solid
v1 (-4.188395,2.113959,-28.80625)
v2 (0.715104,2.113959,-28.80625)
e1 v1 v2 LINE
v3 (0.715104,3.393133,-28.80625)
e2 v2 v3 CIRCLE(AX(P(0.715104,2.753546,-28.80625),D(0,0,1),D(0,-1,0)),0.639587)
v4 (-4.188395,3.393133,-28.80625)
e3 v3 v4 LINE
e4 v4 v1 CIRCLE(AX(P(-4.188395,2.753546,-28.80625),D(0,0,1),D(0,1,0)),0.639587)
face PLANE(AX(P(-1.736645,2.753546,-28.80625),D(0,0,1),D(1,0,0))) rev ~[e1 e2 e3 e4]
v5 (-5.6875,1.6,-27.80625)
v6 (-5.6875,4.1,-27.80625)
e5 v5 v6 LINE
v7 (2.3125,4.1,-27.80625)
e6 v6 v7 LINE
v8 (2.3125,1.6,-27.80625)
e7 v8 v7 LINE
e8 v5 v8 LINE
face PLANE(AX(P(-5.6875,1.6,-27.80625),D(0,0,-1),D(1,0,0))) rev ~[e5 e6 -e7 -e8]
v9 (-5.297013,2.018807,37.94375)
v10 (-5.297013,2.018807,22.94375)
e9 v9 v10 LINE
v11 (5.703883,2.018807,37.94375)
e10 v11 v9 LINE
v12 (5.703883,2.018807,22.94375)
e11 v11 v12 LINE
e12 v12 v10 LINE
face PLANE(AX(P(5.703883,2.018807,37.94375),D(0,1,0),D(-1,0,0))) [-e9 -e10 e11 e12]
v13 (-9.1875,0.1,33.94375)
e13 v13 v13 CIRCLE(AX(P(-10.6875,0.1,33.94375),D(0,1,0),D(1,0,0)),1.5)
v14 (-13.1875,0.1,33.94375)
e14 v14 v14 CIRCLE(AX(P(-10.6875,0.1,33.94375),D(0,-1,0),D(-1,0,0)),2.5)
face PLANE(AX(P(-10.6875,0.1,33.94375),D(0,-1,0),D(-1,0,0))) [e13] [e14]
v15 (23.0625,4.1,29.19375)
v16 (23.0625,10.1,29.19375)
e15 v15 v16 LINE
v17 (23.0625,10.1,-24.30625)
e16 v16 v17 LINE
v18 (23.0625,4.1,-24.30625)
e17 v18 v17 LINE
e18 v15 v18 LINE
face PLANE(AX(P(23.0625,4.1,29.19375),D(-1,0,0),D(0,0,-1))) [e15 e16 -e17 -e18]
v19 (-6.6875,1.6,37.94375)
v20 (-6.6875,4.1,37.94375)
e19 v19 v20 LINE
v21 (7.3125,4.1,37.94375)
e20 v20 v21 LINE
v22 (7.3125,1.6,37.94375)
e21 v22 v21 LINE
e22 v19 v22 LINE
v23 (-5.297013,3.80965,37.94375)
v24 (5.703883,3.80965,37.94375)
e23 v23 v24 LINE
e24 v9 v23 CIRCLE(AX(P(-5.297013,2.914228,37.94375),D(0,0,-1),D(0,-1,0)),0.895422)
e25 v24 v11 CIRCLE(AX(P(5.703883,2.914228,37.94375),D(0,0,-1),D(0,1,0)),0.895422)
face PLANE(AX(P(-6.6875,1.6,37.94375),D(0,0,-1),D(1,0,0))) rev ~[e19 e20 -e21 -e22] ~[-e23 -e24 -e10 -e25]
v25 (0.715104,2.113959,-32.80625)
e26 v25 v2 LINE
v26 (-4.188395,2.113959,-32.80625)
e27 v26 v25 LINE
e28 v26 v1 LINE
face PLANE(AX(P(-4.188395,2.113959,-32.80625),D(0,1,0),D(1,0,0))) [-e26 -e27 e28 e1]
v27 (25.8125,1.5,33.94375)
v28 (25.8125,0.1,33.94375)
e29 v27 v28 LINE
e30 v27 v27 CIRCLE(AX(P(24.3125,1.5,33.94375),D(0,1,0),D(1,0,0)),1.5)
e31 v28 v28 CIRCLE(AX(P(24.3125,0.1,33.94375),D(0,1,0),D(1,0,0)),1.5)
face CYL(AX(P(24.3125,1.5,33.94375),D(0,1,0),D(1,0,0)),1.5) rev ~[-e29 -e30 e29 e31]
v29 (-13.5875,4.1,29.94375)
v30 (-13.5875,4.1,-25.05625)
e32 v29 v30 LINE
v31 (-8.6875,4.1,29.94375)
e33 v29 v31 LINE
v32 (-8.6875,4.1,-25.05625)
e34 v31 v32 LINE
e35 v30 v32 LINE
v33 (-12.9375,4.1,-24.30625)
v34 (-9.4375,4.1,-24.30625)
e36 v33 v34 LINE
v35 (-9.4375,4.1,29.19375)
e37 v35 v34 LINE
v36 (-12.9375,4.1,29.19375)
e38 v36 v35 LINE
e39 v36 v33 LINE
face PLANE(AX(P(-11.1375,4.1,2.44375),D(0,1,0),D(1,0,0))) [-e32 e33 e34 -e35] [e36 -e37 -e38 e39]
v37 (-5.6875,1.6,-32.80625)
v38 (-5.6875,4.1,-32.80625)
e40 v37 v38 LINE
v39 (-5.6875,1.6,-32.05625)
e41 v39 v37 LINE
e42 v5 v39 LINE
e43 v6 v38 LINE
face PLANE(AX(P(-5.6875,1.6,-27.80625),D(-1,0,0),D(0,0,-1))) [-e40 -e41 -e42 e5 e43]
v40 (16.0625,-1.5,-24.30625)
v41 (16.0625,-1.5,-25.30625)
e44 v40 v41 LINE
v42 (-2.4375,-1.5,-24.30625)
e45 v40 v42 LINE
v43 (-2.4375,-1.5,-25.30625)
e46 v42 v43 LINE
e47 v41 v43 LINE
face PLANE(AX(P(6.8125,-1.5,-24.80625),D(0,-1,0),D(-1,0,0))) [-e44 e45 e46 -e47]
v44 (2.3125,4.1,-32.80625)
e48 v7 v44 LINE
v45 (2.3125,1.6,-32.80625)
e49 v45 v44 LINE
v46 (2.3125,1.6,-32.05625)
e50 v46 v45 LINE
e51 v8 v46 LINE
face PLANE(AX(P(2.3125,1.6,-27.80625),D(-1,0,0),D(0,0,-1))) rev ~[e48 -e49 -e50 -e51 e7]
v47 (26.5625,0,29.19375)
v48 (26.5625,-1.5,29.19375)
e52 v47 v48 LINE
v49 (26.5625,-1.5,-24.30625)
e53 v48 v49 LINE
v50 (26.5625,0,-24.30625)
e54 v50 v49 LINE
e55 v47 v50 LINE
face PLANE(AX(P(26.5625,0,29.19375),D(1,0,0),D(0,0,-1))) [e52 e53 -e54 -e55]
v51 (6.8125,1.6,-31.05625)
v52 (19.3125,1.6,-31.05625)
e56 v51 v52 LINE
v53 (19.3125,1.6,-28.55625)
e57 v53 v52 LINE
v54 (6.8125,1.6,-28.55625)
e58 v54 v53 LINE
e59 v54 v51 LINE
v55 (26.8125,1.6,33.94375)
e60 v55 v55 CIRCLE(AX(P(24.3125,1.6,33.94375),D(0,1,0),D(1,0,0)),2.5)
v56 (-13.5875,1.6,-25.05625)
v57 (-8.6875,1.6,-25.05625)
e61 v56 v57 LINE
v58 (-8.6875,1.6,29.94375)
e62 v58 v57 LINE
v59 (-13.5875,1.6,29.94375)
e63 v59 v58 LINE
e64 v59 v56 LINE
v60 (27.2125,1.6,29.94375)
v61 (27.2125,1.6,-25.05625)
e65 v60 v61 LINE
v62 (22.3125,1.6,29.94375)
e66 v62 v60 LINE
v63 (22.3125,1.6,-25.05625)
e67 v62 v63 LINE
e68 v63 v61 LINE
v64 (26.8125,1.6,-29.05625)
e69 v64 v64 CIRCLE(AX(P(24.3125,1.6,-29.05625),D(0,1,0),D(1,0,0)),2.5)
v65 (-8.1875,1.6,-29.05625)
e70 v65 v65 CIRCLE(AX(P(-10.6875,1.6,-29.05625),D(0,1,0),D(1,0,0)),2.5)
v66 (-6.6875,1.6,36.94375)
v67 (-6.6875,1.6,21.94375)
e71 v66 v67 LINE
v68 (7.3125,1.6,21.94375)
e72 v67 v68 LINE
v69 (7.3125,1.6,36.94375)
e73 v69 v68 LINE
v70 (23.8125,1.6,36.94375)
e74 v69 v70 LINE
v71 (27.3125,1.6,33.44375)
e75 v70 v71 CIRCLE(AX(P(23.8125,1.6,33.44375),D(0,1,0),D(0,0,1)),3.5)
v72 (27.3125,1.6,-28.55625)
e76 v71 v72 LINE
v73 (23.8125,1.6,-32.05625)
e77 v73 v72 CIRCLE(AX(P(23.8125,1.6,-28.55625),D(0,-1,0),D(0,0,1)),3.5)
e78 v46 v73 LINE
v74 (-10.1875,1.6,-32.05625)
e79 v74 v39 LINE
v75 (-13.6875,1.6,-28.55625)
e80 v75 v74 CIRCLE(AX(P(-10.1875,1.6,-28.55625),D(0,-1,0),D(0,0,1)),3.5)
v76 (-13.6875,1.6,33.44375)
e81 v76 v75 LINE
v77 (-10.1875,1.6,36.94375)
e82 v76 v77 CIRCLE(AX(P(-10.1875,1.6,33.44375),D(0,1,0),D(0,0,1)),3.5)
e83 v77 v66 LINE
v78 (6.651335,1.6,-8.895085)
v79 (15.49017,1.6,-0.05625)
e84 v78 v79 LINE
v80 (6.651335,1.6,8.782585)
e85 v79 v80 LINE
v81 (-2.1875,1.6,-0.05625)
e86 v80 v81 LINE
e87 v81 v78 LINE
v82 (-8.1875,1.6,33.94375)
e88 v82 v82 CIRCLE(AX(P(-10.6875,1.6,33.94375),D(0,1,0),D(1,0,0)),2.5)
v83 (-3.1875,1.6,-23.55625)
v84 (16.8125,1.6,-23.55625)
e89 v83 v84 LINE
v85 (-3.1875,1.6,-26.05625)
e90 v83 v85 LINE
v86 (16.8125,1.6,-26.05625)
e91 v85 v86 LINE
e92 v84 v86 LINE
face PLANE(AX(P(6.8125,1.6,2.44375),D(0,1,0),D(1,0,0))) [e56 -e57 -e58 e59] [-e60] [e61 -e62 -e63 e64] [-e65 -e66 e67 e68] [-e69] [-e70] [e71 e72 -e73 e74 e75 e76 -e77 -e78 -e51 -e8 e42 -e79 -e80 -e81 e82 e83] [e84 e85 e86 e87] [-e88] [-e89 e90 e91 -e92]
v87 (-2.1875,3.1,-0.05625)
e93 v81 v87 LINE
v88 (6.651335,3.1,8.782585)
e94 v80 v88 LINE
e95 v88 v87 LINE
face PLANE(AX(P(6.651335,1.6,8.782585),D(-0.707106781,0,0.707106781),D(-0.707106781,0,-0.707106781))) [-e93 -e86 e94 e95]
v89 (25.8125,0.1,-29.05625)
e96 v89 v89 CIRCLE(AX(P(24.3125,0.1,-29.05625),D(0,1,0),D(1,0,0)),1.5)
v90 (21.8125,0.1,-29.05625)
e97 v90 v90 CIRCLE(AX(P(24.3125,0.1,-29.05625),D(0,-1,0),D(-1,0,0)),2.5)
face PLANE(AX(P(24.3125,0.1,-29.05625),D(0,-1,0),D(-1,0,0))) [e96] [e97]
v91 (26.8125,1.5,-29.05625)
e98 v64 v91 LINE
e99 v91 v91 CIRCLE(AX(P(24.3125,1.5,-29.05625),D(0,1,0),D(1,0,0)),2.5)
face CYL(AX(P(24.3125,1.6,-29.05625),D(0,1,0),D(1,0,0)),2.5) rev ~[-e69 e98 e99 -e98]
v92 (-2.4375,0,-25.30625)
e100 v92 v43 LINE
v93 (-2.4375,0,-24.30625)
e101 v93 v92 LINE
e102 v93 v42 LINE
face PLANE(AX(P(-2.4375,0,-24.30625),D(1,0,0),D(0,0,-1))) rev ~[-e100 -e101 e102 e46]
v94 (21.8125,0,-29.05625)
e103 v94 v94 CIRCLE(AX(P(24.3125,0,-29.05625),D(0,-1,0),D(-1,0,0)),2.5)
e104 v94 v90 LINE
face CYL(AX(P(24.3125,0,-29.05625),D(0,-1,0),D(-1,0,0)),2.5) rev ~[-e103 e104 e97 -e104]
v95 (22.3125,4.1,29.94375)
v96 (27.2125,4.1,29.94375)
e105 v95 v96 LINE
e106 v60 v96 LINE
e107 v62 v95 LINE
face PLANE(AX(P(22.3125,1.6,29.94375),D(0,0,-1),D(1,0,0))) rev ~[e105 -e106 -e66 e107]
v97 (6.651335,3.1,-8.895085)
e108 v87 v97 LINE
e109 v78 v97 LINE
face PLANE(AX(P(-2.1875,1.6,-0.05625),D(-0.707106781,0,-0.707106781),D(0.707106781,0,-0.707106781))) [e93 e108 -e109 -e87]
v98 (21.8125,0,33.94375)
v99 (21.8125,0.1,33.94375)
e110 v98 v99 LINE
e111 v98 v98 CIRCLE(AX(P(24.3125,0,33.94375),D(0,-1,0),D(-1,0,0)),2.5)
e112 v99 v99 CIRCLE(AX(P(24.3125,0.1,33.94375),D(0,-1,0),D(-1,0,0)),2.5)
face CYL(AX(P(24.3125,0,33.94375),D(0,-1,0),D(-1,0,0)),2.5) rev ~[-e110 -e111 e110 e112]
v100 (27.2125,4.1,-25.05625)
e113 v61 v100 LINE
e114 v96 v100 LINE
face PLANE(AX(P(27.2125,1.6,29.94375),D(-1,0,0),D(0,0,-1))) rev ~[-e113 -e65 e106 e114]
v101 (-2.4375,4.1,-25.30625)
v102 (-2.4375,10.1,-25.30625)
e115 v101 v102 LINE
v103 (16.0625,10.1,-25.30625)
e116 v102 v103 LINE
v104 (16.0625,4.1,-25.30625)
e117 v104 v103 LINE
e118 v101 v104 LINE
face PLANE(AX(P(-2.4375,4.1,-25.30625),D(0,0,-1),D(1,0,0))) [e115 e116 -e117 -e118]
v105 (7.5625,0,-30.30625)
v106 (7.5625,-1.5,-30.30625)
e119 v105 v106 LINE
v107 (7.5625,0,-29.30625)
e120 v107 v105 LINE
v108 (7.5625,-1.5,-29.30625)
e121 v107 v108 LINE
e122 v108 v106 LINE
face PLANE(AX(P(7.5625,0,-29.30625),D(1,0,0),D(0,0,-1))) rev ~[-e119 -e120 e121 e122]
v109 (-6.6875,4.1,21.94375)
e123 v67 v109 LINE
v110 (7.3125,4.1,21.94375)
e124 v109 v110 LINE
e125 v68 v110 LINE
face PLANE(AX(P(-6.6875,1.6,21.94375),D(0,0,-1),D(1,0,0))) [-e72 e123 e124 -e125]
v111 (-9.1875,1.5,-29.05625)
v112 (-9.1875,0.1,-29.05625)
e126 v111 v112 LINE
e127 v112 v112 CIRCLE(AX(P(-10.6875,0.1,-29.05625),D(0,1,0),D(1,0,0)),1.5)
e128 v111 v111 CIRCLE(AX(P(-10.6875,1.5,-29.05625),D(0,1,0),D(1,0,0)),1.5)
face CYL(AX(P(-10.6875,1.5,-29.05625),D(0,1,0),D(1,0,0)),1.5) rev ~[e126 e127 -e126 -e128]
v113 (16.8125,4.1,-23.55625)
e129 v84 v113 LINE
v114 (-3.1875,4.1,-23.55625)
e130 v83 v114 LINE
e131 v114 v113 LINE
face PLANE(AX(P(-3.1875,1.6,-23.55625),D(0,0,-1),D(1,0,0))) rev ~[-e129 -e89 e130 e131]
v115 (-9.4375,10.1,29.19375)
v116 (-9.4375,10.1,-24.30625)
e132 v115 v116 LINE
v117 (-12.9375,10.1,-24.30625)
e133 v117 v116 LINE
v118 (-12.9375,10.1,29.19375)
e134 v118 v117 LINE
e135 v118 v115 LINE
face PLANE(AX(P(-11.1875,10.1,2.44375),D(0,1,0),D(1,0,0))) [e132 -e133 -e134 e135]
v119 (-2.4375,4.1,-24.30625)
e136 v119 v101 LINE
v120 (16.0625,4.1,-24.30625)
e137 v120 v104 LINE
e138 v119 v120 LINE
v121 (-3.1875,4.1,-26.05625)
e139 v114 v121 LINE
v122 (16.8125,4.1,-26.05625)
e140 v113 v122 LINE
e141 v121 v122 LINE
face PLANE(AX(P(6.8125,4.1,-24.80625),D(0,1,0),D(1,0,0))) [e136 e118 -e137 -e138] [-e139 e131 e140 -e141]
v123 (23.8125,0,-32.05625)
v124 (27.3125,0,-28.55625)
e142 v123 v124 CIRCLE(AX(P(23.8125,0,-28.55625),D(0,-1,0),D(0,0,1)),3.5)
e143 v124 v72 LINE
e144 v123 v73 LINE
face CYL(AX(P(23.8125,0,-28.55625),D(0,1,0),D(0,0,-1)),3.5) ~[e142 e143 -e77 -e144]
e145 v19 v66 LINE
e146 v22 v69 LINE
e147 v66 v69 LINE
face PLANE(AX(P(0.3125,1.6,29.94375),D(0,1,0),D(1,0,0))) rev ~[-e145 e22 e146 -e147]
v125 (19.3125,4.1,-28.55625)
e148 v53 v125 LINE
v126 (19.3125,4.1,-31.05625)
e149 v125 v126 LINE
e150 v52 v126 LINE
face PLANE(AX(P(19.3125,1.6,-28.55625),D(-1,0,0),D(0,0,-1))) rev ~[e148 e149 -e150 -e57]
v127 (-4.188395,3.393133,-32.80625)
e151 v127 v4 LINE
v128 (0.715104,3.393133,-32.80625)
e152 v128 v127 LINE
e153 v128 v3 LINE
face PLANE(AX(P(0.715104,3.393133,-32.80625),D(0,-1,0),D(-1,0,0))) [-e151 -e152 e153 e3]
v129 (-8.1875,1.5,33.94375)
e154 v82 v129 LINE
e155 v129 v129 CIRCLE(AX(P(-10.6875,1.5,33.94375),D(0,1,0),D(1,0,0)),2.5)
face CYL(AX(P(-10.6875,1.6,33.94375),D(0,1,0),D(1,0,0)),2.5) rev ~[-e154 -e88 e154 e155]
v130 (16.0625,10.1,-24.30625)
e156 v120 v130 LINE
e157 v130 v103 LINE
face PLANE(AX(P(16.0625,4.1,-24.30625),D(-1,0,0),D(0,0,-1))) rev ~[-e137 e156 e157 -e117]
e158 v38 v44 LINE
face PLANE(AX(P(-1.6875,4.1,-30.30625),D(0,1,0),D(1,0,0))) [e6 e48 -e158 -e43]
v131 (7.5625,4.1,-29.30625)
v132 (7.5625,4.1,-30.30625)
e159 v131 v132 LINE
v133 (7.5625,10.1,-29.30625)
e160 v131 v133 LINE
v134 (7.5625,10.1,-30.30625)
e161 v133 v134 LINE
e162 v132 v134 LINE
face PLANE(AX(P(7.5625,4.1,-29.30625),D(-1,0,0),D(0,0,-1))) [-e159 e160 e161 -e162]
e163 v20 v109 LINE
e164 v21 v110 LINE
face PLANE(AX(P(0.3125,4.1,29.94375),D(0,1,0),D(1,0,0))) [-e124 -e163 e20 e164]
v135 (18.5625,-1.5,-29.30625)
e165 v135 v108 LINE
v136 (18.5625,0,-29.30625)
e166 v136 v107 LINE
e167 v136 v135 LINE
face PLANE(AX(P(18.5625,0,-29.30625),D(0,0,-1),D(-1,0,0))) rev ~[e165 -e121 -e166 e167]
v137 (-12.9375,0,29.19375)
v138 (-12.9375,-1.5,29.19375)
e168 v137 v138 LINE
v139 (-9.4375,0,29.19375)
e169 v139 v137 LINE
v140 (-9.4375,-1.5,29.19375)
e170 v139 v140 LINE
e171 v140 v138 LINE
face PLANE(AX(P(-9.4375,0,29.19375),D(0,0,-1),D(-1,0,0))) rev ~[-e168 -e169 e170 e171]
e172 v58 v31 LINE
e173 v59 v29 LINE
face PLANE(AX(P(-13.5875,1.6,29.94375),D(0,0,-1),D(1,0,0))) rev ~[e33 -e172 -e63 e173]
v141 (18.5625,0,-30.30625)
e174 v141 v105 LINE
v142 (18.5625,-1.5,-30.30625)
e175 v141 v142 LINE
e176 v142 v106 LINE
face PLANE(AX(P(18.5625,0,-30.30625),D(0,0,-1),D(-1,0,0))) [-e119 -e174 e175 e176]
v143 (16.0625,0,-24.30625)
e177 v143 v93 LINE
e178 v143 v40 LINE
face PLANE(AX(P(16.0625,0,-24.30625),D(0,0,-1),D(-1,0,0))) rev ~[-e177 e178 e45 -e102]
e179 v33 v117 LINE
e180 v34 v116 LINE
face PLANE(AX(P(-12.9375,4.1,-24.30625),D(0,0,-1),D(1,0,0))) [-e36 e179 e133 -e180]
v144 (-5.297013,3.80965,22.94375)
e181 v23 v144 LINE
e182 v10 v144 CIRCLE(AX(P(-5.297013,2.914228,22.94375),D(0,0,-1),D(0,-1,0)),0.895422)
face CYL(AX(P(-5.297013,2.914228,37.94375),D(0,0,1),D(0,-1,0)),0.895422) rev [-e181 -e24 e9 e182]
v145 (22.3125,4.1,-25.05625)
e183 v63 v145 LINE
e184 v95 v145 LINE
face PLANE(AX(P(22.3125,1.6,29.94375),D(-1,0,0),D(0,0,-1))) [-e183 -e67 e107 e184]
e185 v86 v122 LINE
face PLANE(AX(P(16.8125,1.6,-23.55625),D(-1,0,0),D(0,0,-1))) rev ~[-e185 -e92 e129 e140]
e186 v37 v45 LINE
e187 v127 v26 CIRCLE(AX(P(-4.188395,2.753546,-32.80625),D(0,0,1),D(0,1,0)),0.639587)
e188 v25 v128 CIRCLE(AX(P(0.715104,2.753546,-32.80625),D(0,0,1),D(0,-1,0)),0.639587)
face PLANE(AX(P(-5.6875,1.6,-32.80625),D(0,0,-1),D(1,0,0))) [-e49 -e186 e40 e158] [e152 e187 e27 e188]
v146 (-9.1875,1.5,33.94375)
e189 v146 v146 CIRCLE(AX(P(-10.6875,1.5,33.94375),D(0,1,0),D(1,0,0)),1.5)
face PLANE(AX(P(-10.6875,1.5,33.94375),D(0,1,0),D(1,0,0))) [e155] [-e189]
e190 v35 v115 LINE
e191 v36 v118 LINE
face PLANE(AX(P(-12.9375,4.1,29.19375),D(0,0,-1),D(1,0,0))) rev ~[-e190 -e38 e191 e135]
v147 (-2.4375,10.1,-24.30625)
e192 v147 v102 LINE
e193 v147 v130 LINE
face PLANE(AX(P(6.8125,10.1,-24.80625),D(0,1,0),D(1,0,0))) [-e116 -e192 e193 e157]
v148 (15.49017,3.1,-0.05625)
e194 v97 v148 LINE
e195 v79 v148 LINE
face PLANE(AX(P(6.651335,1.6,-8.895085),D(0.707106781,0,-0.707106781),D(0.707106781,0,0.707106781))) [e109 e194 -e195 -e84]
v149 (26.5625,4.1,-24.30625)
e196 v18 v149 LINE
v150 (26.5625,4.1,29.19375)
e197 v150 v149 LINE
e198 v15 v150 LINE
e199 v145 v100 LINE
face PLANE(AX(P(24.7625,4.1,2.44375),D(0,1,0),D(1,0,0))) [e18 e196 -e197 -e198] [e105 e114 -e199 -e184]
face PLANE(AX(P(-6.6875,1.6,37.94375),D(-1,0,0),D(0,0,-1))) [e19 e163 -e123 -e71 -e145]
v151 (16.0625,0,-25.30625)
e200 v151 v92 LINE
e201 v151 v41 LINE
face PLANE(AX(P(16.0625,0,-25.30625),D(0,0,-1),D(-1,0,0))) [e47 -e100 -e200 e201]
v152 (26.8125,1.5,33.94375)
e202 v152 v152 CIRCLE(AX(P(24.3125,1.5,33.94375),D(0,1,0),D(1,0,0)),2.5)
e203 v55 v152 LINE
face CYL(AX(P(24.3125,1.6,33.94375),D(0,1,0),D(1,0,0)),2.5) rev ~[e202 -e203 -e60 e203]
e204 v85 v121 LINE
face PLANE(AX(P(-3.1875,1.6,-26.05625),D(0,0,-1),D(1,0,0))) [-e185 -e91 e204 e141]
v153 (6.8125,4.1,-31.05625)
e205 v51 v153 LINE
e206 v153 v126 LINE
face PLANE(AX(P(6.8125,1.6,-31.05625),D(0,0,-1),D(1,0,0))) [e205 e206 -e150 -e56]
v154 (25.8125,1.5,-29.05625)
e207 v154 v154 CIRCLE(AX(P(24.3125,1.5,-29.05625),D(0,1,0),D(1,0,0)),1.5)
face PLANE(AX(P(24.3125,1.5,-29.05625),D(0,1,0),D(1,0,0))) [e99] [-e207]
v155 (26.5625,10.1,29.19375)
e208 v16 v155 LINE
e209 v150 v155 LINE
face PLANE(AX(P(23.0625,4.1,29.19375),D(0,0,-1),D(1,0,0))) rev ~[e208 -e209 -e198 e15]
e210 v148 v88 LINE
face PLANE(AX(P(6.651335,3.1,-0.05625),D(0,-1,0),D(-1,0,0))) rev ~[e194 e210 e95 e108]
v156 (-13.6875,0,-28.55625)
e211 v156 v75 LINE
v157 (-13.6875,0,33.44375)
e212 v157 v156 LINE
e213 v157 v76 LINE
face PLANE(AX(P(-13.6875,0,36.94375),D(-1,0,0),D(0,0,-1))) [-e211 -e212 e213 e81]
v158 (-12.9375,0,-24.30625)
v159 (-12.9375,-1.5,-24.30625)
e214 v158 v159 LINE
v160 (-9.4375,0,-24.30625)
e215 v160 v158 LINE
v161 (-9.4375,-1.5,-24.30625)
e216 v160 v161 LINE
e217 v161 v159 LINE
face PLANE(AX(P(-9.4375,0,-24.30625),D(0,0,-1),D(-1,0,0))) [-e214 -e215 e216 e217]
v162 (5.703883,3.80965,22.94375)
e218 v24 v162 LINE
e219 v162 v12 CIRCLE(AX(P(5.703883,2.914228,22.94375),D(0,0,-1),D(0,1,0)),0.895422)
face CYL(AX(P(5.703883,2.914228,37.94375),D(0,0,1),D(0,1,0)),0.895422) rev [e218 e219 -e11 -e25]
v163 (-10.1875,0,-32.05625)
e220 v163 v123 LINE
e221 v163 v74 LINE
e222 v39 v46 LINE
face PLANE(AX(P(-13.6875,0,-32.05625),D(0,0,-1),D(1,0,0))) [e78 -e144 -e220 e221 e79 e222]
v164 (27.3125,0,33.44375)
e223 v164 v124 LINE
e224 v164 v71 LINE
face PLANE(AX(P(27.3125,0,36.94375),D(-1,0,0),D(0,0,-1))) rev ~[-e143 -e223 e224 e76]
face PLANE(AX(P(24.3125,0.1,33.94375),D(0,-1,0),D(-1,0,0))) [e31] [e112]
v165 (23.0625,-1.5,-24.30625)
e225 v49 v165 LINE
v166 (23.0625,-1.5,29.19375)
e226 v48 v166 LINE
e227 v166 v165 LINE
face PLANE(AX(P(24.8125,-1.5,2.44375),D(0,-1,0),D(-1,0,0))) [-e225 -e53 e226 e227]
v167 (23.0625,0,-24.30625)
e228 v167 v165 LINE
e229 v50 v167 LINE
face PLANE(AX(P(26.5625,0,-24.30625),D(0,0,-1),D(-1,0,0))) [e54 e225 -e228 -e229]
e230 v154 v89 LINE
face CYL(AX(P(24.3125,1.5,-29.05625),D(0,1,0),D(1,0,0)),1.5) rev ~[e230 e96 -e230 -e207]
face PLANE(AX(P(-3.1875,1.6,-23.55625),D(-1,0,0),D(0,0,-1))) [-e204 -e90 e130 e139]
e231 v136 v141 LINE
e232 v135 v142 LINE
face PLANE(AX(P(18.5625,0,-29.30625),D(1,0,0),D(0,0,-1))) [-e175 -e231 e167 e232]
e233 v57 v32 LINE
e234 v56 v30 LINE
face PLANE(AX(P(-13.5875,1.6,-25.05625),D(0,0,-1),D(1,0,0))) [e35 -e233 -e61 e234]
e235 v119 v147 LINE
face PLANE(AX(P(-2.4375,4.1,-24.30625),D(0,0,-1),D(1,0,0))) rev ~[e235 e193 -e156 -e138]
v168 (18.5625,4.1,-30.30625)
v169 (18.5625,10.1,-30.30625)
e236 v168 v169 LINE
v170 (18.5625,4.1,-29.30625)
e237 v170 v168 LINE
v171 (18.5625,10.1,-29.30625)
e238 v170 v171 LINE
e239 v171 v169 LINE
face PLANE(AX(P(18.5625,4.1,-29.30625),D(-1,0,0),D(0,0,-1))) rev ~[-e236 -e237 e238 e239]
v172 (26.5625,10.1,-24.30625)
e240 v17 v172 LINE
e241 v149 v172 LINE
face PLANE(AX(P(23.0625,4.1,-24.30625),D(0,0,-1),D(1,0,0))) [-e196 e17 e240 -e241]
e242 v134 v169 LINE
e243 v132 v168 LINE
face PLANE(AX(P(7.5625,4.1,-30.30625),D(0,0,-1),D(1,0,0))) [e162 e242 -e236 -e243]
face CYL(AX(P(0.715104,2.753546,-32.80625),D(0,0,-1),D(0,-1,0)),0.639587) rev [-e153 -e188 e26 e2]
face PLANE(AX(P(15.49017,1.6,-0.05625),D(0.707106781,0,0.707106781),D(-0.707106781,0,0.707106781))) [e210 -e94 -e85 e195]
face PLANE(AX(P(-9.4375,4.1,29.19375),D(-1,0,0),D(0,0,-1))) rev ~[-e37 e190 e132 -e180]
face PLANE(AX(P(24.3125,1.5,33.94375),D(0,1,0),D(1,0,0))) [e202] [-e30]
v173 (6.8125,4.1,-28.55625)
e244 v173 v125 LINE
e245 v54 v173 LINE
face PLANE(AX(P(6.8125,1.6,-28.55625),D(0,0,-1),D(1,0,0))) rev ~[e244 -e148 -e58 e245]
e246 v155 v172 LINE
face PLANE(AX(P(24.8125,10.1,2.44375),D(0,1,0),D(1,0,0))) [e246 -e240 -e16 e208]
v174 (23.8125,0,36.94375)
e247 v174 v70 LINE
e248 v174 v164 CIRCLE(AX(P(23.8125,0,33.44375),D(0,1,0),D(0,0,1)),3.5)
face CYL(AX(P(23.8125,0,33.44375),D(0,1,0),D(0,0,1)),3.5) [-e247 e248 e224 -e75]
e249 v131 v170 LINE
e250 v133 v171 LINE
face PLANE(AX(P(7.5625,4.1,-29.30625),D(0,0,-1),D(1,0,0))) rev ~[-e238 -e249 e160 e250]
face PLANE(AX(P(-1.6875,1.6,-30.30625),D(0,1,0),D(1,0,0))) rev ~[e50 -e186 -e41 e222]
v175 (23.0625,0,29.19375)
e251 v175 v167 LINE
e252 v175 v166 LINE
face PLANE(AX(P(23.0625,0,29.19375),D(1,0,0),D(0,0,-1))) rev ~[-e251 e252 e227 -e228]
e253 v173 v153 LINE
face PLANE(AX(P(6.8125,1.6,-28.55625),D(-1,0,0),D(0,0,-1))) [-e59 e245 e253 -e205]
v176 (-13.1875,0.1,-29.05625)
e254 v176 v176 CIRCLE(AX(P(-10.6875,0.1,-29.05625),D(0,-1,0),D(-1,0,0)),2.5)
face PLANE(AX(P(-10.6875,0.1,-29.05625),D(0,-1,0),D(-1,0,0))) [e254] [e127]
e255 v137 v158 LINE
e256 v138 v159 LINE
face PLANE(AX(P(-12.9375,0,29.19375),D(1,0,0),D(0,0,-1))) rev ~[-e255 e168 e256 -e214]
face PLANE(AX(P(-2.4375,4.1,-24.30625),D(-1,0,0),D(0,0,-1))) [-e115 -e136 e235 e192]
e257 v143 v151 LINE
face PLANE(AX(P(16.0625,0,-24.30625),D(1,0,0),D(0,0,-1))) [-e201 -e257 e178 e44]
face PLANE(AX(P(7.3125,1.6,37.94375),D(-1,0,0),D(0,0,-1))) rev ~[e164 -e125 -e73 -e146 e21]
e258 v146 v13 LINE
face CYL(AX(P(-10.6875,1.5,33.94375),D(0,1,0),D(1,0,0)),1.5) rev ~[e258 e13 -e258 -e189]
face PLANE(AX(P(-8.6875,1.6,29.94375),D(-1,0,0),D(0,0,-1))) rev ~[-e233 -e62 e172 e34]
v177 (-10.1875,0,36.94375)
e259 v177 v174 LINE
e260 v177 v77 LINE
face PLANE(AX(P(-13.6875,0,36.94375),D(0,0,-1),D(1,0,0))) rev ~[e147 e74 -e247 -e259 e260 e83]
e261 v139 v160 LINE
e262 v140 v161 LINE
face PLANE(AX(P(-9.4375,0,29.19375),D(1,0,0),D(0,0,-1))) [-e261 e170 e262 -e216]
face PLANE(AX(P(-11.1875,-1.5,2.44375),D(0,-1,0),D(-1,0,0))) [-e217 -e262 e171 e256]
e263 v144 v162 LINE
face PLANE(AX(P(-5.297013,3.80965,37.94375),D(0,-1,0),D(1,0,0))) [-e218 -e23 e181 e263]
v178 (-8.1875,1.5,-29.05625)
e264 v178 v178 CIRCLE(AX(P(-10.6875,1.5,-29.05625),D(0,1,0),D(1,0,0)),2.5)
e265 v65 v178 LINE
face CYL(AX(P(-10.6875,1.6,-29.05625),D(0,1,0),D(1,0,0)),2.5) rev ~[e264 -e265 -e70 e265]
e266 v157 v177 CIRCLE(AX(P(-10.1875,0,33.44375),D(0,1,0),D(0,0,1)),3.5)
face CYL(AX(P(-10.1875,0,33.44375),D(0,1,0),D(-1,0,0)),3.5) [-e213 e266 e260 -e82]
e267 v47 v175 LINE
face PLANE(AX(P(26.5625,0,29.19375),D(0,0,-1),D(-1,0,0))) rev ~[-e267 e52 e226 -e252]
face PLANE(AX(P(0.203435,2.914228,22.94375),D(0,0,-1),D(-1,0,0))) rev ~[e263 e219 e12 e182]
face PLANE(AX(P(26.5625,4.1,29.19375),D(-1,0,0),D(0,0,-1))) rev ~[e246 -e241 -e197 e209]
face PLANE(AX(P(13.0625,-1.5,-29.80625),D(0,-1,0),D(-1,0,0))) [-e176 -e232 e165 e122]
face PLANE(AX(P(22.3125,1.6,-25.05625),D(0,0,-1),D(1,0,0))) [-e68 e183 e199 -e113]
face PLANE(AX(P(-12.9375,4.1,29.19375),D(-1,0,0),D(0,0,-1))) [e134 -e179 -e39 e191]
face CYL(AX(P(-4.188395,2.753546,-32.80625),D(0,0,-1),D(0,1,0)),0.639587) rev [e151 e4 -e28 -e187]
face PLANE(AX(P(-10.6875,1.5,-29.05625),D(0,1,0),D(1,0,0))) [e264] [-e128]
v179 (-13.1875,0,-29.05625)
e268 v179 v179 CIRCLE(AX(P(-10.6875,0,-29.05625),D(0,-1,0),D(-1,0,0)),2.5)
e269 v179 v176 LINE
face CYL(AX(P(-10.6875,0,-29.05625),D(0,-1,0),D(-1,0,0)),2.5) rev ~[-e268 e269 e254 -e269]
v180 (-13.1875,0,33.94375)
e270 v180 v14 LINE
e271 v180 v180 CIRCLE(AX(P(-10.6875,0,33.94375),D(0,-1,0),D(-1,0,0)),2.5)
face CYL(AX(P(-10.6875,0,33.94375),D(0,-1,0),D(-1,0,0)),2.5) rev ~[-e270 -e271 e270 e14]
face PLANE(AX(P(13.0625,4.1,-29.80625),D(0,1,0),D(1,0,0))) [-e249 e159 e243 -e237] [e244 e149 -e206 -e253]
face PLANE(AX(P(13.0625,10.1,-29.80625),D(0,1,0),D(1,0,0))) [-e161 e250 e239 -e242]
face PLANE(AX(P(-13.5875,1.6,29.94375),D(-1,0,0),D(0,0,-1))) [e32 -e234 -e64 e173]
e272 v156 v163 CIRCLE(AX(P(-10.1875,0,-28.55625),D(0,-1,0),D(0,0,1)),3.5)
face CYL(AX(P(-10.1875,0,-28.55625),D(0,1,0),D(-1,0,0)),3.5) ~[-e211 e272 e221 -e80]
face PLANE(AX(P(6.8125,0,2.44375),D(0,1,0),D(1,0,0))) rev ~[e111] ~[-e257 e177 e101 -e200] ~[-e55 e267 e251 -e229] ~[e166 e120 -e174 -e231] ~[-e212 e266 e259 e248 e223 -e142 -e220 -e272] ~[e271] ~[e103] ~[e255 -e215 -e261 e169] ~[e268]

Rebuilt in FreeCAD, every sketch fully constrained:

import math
import FreeCAD as App
import Part
import Sketcher

V = App.Vector


def edges_at(feature, points):
    """Names of the edges that pass closest to the given points."""
    edges = feature.Shape.Edges
    near = lambda p: min(range(len(edges)), key=lambda i: edges[i].distToShape(Part.Vertex(*p))[0])
    return sorted({f"Edge{near(p) + 1}" for p in points})


def add_polygon(sketch, points):
    """Adds a closed chain of lines whose ends are joined by coincident constraints."""
    first, n = sketch.GeometryCount, len(points)
    for a, b in zip(points, points[1:] + points[:1]):
        sketch.addGeometry(Part.LineSegment(App.Vector(*a, 0), App.Vector(*b, 0)), False)
    for i in range(n):
        sketch.addConstraint(Sketcher.Constraint("Coincident", first + i, 2, first + (i + 1) % n, 1))

doc = App.newDocument("Part")
params = doc.addObject("Spreadsheet::Sheet", "Params")
for row, (alias, value) in enumerate([
    ("sketch1_width", "41 mm"),
    ("sketch1_height", "69 mm"),
    ("pad1_length", "1.6 mm"),
    ("sketch2_diameter", "5 mm"),
    ("pocket1_length", "0.1 mm"),
    ("fillet_radius", "3.5 mm"),
    ("sketch3_diameter", "3 mm"),
    ("pocket2_length", "1.9 mm"),
    ("sketch4_height", "55 mm"),
    ("sketch4_width", "4.9 mm"),
    ("pad2_length", "2.5 mm"),
    ("sketch5_height", "55 mm"),
    ("sketch5_width", "4.9 mm"),
    ("pad3_length", "2.5 mm"),
    ("sketch6_width", "20 mm"),
    ("sketch6_height", "2.5 mm"),
    ("pad4_length", "2.5 mm"),
    ("sketch7_width", "12.5 mm"),
    ("sketch7_height", "2.5 mm"),
    ("pad5_length", "2.5 mm"),
    ("sketch8_width", "8 mm"),
    ("sketch8_height", "5 mm"),
    ("pad6_length", "2.5 mm"),
    ("pocket3_length", "4 mm"),
    ("sketch10_length", "12.5 mm"),
    ("pad7_length", "1.5 mm"),
    ("sketch11_width", "3.5 mm"),
    ("sketch11_height", "53.5 mm"),
    ("pad8_length", "6 mm"),
    ("sketch12_width", "3.5 mm"),
    ("sketch12_height", "53.5 mm"),
    ("pad9_length", "6 mm"),
    ("sketch13_height", "1 mm"),
    ("sketch13_width", "18.5 mm"),
    ("pad10_length", "6 mm"),
    ("sketch14_width", "11 mm"),
    ("sketch14_height", "1 mm"),
    ("pad11_length", "6 mm"),
    ("sketch15_width", "11 mm"),
    ("sketch15_height", "1 mm"),
    ("sketch15_width2", "3.5 mm"),
    ("sketch15_width3", "18.5 mm"),
    ("sketch15_height2", "53.5 mm"),
    ("pad12_length", "1.5 mm"),
    ("sketch16_diameter", "5 mm"),
    ("pocket4_length", "0.1 mm"),
    ("sketch17_width", "14 mm"),
    ("sketch17_height", "16 mm"),
    ("pad13_length", "2.5 mm"),
    ("pocket5_length", "15 mm"),
], start=1):
    params.set(f"A{row}", alias)
    params.set(f"B{row}", "=" + value)
    params.setAlias(f"B{row}", alias)

body = doc.addObject("PartDesign::Body", "Body")

# Sketch on XZ plane
sketch1 = doc.addObject("Sketcher::SketchObject", "Sketch")
body.addObject(sketch1)
sketch1.AttachmentSupport = (doc.XZ_Plane, [""])
sketch1.MapMode = "FlatFace"
add_polygon(sketch1, [(-14, -32), (-14, 37), (27, 37), (27, -32)])  # lines 0-3
sketch1.addConstraint([
    Sketcher.Constraint("Vertical", 0),
    Sketcher.Constraint("Horizontal", 1),
    Sketcher.Constraint("Vertical", 2),
    Sketcher.Constraint("Horizontal", 3),
    Sketcher.Constraint("DistanceX", 1, 1, 1, 2, 41.0),
    Sketcher.Constraint("DistanceY", 0, 1, 0, 2, 69.0),
    Sketcher.Constraint("DistanceX", 0, 2, -1, 1, 13.6875),
    Sketcher.Constraint("DistanceY", -1, 1, 0, 2, 36.94375),
])
sketch1.setExpression("Constraints[8]", "Params.sketch1_width")
sketch1.setExpression("Constraints[9]", "Params.sketch1_height")
pad1 = doc.addObject("PartDesign::Pad", "Pad")
body.addObject(pad1)
pad1.Profile = sketch1
pad1.setExpression("Length", "Params.pad1_length")
pad1.Reversed = True

# Sketch on XZ plane
sketch2 = doc.addObject("Sketcher::SketchObject", "Sketch001")
body.addObject(sketch2)
sketch2.AttachmentSupport = (doc.XZ_Plane, [""])
sketch2.MapMode = "FlatFace"
sketch2.AttachmentOffset = App.Placement(V(0, 0, -1.6), App.Rotation())
sketch2.addGeometry([
    Part.Circle(V(-10.7, -29.1, 0), V(0, 0, 1), 2.5),
    Part.Circle(V(24.3, -29.1, 0), V(0, 0, 1), 2.5),
    Part.Circle(V(-10.7, 33.9, 0), V(0, 0, 1), 2.5),
    Part.Circle(V(24.3, 33.9, 0), V(0, 0, 1), 2.5),
], False)
sketch2.addConstraint([
    Sketcher.Constraint("Equal", 0, 1),
    Sketcher.Constraint("Equal", 1, 2),
    Sketcher.Constraint("Equal", 2, 3),
    Sketcher.Constraint("Horizontal", 0, 3, 1, 3),
    Sketcher.Constraint("Horizontal", 2, 3, 3, 3),
    Sketcher.Constraint("Vertical", 0, 3, 2, 3),
    Sketcher.Constraint("Vertical", 1, 3, 3, 3),
    Sketcher.Constraint("Diameter", 0, 5.0),
    Sketcher.Constraint("DistanceX", 0, 3, 1, 3, 35.0),
    Sketcher.Constraint("DistanceY", 0, 3, 2, 3, 63.0),
    Sketcher.Constraint("DistanceX", 0, 3, -1, 1, 10.6875),
    Sketcher.Constraint("DistanceY", 0, 3, -1, 1, 29.05625),
])
sketch2.setExpression("Constraints[7]", "Params.sketch2_diameter")
pocket1 = doc.addObject("PartDesign::Pocket", "Pocket")
body.addObject(pocket1)
pocket1.Profile = sketch2
pocket1.setExpression("Length", "Params.pocket1_length")
pocket1.Reversed = True
doc.recompute()

fillet = doc.addObject("PartDesign::Fillet", "Fillet")
body.addObject(fillet)
fillet.Base = (pocket1, edges_at(pocket1, [
    (-13.688, 0.8, -32.056),
    (27.312, 0.8, -32.056),
    (27.312, 0.8, 36.944),
    (-13.688, 0.8, 36.944),
]))
fillet.setExpression("Radius", "Params.fillet_radius")

# Sketch on XZ plane
sketch3 = doc.addObject("Sketcher::SketchObject", "Sketch002")
body.addObject(sketch3)
sketch3.AttachmentSupport = (doc.XZ_Plane, [""])
sketch3.MapMode = "FlatFace"
sketch3.AttachmentOffset = App.Placement(V(0, 0, -1.5), App.Rotation())
sketch3.addGeometry([
    Part.Circle(V(-10.7, -29.1, 0), V(0, 0, 1), 1.5),
    Part.Circle(V(24.3, -29.1, 0), V(0, 0, 1), 1.5),
    Part.Circle(V(-10.7, 33.9, 0), V(0, 0, 1), 1.5),
    Part.Circle(V(24.3, 33.9, 0), V(0, 0, 1), 1.5),
], False)
sketch3.addConstraint([
    Sketcher.Constraint("Equal", 0, 1),
    Sketcher.Constraint("Equal", 1, 2),
    Sketcher.Constraint("Equal", 2, 3),
    Sketcher.Constraint("Horizontal", 0, 3, 1, 3),
    Sketcher.Constraint("Horizontal", 2, 3, 3, 3),
    Sketcher.Constraint("Vertical", 0, 3, 2, 3),
    Sketcher.Constraint("Vertical", 1, 3, 3, 3),
    Sketcher.Constraint("Diameter", 0, 3.0),
    Sketcher.Constraint("DistanceX", 0, 3, 1, 3, 35.0),
    Sketcher.Constraint("DistanceY", 0, 3, 2, 3, 63.0),
    Sketcher.Constraint("DistanceX", 0, 3, -1, 1, 10.6875),
    Sketcher.Constraint("DistanceY", 0, 3, -1, 1, 29.05625),
])
sketch3.setExpression("Constraints[7]", "Params.sketch3_diameter")
pocket2 = doc.addObject("PartDesign::Pocket", "Pocket001")
body.addObject(pocket2)
pocket2.Profile = sketch3
pocket2.setExpression("Length", "Params.pocket2_length")
pocket2.Reversed = True

# Sketch on XZ plane
sketch4 = doc.addObject("Sketcher::SketchObject", "Sketch003")
body.addObject(sketch4)
sketch4.AttachmentSupport = (doc.XZ_Plane, [""])
sketch4.MapMode = "FlatFace"
sketch4.AttachmentOffset = App.Placement(V(0, 0, -1.6), App.Rotation())
add_polygon(sketch4, [(-13.6, -25.1), (-13.6, 29.9), (-8.7, 29.9), (-8.7, -25.1)])  # lines 0-3
sketch4.addConstraint([
    Sketcher.Constraint("Vertical", 0),
    Sketcher.Constraint("Horizontal", 1),
    Sketcher.Constraint("Vertical", 2),
    Sketcher.Constraint("Horizontal", 3),
    Sketcher.Constraint("DistanceY", 0, 1, 0, 2, 55.0),
    Sketcher.Constraint("DistanceX", 1, 1, 1, 2, 4.9),
    Sketcher.Constraint("DistanceX", 0, 2, -1, 1, 13.5875),
    Sketcher.Constraint("DistanceY", -1, 1, 0, 2, 29.94375),
])
sketch4.setExpression("Constraints[8]", "Params.sketch4_height")
sketch4.setExpression("Constraints[9]", "Params.sketch4_width")
pad2 = doc.addObject("PartDesign::Pad", "Pad001")
body.addObject(pad2)
pad2.Profile = sketch4
pad2.setExpression("Length", "Params.pad2_length")
pad2.Reversed = True

# Sketch on XZ plane
sketch5 = doc.addObject("Sketcher::SketchObject", "Sketch004")
body.addObject(sketch5)
sketch5.AttachmentSupport = (doc.XZ_Plane, [""])
sketch5.MapMode = "FlatFace"
sketch5.AttachmentOffset = App.Placement(V(0, 0, -1.6), App.Rotation())
add_polygon(sketch5, [(22.3, -25.1), (22.3, 29.9), (27.2, 29.9), (27.2, -25.1)])  # lines 0-3
sketch5.addConstraint([
    Sketcher.Constraint("Vertical", 0),
    Sketcher.Constraint("Horizontal", 1),
    Sketcher.Constraint("Vertical", 2),
    Sketcher.Constraint("Horizontal", 3),
    Sketcher.Constraint("DistanceY", 0, 1, 0, 2, 55.0),
    Sketcher.Constraint("DistanceX", 1, 1, 1, 2, 4.9),
    Sketcher.Constraint("DistanceX", -1, 1, 0, 2, 22.3125),
    Sketcher.Constraint("DistanceY", -1, 1, 0, 2, 29.94375),
])
sketch5.setExpression("Constraints[8]", "Params.sketch5_height")
sketch5.setExpression("Constraints[9]", "Params.sketch5_width")
pad3 = doc.addObject("PartDesign::Pad", "Pad002")
body.addObject(pad3)
pad3.Profile = sketch5
pad3.setExpression("Length", "Params.pad3_length")
pad3.Reversed = True

# Sketch on XZ plane
sketch6 = doc.addObject("Sketcher::SketchObject", "Sketch005")
body.addObject(sketch6)
sketch6.AttachmentSupport = (doc.XZ_Plane, [""])
sketch6.MapMode = "FlatFace"
sketch6.AttachmentOffset = App.Placement(V(0, 0, -1.6), App.Rotation())
add_polygon(sketch6, [(-3.2, -26.1), (-3.2, -23.6), (16.8, -23.6), (16.8, -26.1)])  # lines 0-3
sketch6.addConstraint([
    Sketcher.Constraint("Vertical", 0),
    Sketcher.Constraint("Horizontal", 1),
    Sketcher.Constraint("Vertical", 2),
    Sketcher.Constraint("Horizontal", 3),
    Sketcher.Constraint("DistanceX", 1, 1, 1, 2, 20.0),
    Sketcher.Constraint("DistanceY", 0, 1, 0, 2, 2.5),
    Sketcher.Constraint("DistanceX", 0, 2, -1, 1, 3.1875),
    Sketcher.Constraint("DistanceY", 0, 2, -1, 1, 23.55625),
])
sketch6.setExpression("Constraints[8]", "Params.sketch6_width")
sketch6.setExpression("Constraints[9]", "Params.sketch6_height")
pad4 = doc.addObject("PartDesign::Pad", "Pad003")
body.addObject(pad4)
pad4.Profile = sketch6
pad4.setExpression("Length", "Params.pad4_length")
pad4.Reversed = True

# Sketch on XZ plane
sketch7 = doc.addObject("Sketcher::SketchObject", "Sketch006")
body.addObject(sketch7)
sketch7.AttachmentSupport = (doc.XZ_Plane, [""])
sketch7.MapMode = "FlatFace"
sketch7.AttachmentOffset = App.Placement(V(0, 0, -1.6), App.Rotation())
add_polygon(sketch7, [(6.8, -31.1), (6.8, -28.6), (19.3, -28.6), (19.3, -31.1)])  # lines 0-3
sketch7.addConstraint([
    Sketcher.Constraint("Vertical", 0),
    Sketcher.Constraint("Horizontal", 1),
    Sketcher.Constraint("Vertical", 2),
    Sketcher.Constraint("Horizontal", 3),
    Sketcher.Constraint("DistanceX", 1, 1, 1, 2, 12.5),
    Sketcher.Constraint("DistanceY", 0, 1, 0, 2, 2.5),
    Sketcher.Constraint("DistanceX", -1, 1, 0, 2, 6.8125),
    Sketcher.Constraint("DistanceY", 0, 2, -1, 1, 28.55625),
])
sketch7.setExpression("Constraints[8]", "Params.sketch7_width")
sketch7.setExpression("Constraints[9]", "Params.sketch7_height")
pad5 = doc.addObject("PartDesign::Pad", "Pad004")
body.addObject(pad5)
pad5.Profile = sketch7
pad5.setExpression("Length", "Params.pad5_length")
pad5.Reversed = True

# Sketch on XZ plane
sketch8 = doc.addObject("Sketcher::SketchObject", "Sketch007")
body.addObject(sketch8)
sketch8.AttachmentSupport = (doc.XZ_Plane, [""])
sketch8.MapMode = "FlatFace"
sketch8.AttachmentOffset = App.Placement(V(0, 0, -1.6), App.Rotation())
add_polygon(sketch8, [(-6, -33), (-6, -28), (2, -28), (2, -33)])  # lines 0-3
sketch8.addConstraint([
    Sketcher.Constraint("Vertical", 0),
    Sketcher.Constraint("Horizontal", 1),
    Sketcher.Constraint("Vertical", 2),
    Sketcher.Constraint("Horizontal", 3),
    Sketcher.Constraint("DistanceX", 1, 1, 1, 2, 8.0),
    Sketcher.Constraint("DistanceY", 0, 1, 0, 2, 5.0),
    Sketcher.Constraint("DistanceX", 0, 2, -1, 1, 5.6875),
    Sketcher.Constraint("DistanceY", 0, 2, -1, 1, 27.80625),
])
sketch8.setExpression("Constraints[8]", "Params.sketch8_width")
sketch8.setExpression("Constraints[9]", "Params.sketch8_height")
pad6 = doc.addObject("PartDesign::Pad", "Pad005")
body.addObject(pad6)
pad6.Profile = sketch8
pad6.setExpression("Length", "Params.pad6_length")
pad6.Reversed = True

# Sketch on XY plane
sketch9 = doc.addObject("Sketcher::SketchObject", "Sketch008")
body.addObject(sketch9)
sketch9.AttachmentSupport = (doc.XY_Plane, [""])
sketch9.MapMode = "FlatFace"
sketch9.AttachmentOffset = App.Placement(V(0, 0, -32.80625), App.Rotation())
sketch9.addGeometry([
    Part.LineSegment(V(-4.2, 3.4, 0), V(0.7, 3.4, 0)),
    Part.ArcOfCircle(Part.Circle(V(0.7, 2.8, 0), V(0, 0, 1), 0.6), math.radians(-90), math.radians(90)),
    Part.LineSegment(V(0.7, 2.1, 0), V(-4.2, 2.1, 0)),
    Part.ArcOfCircle(Part.Circle(V(-4.2, 2.8, 0), V(0, 0, 1), 0.6), math.radians(90), math.radians(270)),
], False)
sketch9.addConstraint([
    Sketcher.Constraint("Tangent", 0, 2, 1, 2),
    Sketcher.Constraint("Tangent", 1, 1, 2, 1),
    Sketcher.Constraint("Tangent", 2, 2, 3, 2),
    Sketcher.Constraint("Tangent", 3, 1, 0, 1),
    Sketcher.Constraint("Horizontal", 0),
    Sketcher.Constraint("Horizontal", 2),
    Sketcher.Constraint("DistanceX", 0, 1, 0, 2, 4.9035),
    Sketcher.Constraint("Radius", 1, 0.639587),
    Sketcher.Constraint("DistanceY", -1, 1, 1, 1, 2.113959),
    Sketcher.Constraint("DistanceX", -1, 1, 1, 3, 0.715104),
])
pocket3 = doc.addObject("PartDesign::Pocket", "Pocket002")
body.addObject(pocket3)
pocket3.Profile = sketch9
pocket3.setExpression("Length", "Params.pocket3_length")
pocket3.Reversed = True

# Sketch on XZ plane
sketch10 = doc.addObject("Sketcher::SketchObject", "Sketch009")
body.addObject(sketch10)
sketch10.AttachmentSupport = (doc.XZ_Plane, [""])
sketch10.MapMode = "FlatFace"
sketch10.AttachmentOffset = App.Placement(V(0, 0, -1.6), App.Rotation())
add_polygon(sketch10, [(7, -9), (-2, 0), (7, 9), (15, 0)])  # lines 0-3
sketch10.addConstraint([
    Sketcher.Constraint("Perpendicular", 0, 1),
    Sketcher.Constraint("Perpendicular", 1, 2),
    Sketcher.Constraint("Perpendicular", 2, 3),
    Sketcher.Constraint("Horizontal", 0, 2, 2, 2),
    Sketcher.Constraint("Vertical", 1, 2, 3, 2),
    Sketcher.Constraint("Distance", 0, 12.5),
    Sketcher.Constraint("DistanceX", 0, 2, -1, 1, 2.1875),
    Sketcher.Constraint("DistanceY", 0, 2, -1, 1, 0.05625),
])
sketch10.setExpression("Constraints[9]", "Params.sketch10_length")
pad7 = doc.addObject("PartDesign::Pad", "Pad006")
body.addObject(pad7)
pad7.Profile = sketch10
pad7.setExpression("Length", "Params.pad7_length")
pad7.Reversed = True

# Sketch on XZ plane
sketch11 = doc.addObject("Sketcher::SketchObject", "Sketch010")
body.addObject(sketch11)
sketch11.AttachmentSupport = (doc.XZ_Plane, [""])
sketch11.MapMode = "FlatFace"
sketch11.AttachmentOffset = App.Placement(V(0, 0, -4.1), App.Rotation())
add_polygon(sketch11, [(-12.9, -24.3), (-12.9, 29.2), (-9.4, 29.2), (-9.4, -24.3)])  # lines 0-3
sketch11.addConstraint([
    Sketcher.Constraint("Vertical", 0),
    Sketcher.Constraint("Horizontal", 1),
    Sketcher.Constraint("Vertical", 2),
    Sketcher.Constraint("Horizontal", 3),
    Sketcher.Constraint("DistanceX", 1, 1, 1, 2, 3.5),
    Sketcher.Constraint("DistanceY", 0, 1, 0, 2, 53.5),
    Sketcher.Constraint("DistanceX", 0, 2, -1, 1, 12.9375),
    Sketcher.Constraint("DistanceY", -1, 1, 0, 2, 29.19375),
])
sketch11.setExpression("Constraints[8]", "Params.sketch11_width")
sketch11.setExpression("Constraints[9]", "Params.sketch11_height")
pad8 = doc.addObject("PartDesign::Pad", "Pad007")
body.addObject(pad8)
pad8.Profile = sketch11
pad8.setExpression("Length", "Params.pad8_length")
pad8.Reversed = True

# Sketch on XZ plane
sketch12 = doc.addObject("Sketcher::SketchObject", "Sketch011")
body.addObject(sketch12)
sketch12.AttachmentSupport = (doc.XZ_Plane, [""])
sketch12.MapMode = "FlatFace"
sketch12.AttachmentOffset = App.Placement(V(0, 0, -4.1), App.Rotation())
add_polygon(sketch12, [(23.1, -24.3), (23.1, 29.2), (26.6, 29.2), (26.6, -24.3)])  # lines 0-3
sketch12.addConstraint([
    Sketcher.Constraint("Vertical", 0),
    Sketcher.Constraint("Horizontal", 1),
    Sketcher.Constraint("Vertical", 2),
    Sketcher.Constraint("Horizontal", 3),
    Sketcher.Constraint("DistanceX", 1, 1, 1, 2, 3.5),
    Sketcher.Constraint("DistanceY", 0, 1, 0, 2, 53.5),
    Sketcher.Constraint("DistanceX", -1, 1, 0, 2, 23.0625),
    Sketcher.Constraint("DistanceY", -1, 1, 0, 2, 29.19375),
])
sketch12.setExpression("Constraints[8]", "Params.sketch12_width")
sketch12.setExpression("Constraints[9]", "Params.sketch12_height")
pad9 = doc.addObject("PartDesign::Pad", "Pad008")
body.addObject(pad9)
pad9.Profile = sketch12
pad9.setExpression("Length", "Params.pad9_length")
pad9.Reversed = True

# Sketch on XZ plane
sketch13 = doc.addObject("Sketcher::SketchObject", "Sketch012")
body.addObject(sketch13)
sketch13.AttachmentSupport = (doc.XZ_Plane, [""])
sketch13.MapMode = "FlatFace"
sketch13.AttachmentOffset = App.Placement(V(0, 0, -4.1), App.Rotation())
add_polygon(sketch13, [(-2.4, -25.3), (-2.4, -24.3), (16.1, -24.3), (16.1, -25.3)])  # lines 0-3
sketch13.addConstraint([
    Sketcher.Constraint("Vertical", 0),
    Sketcher.Constraint("Horizontal", 1),
    Sketcher.Constraint("Vertical", 2),
    Sketcher.Constraint("Horizontal", 3),
    Sketcher.Constraint("DistanceY", 0, 1, 0, 2, 1.0),
    Sketcher.Constraint("DistanceX", 1, 1, 1, 2, 18.5),
    Sketcher.Constraint("DistanceX", 0, 2, -1, 1, 2.4375),
    Sketcher.Constraint("DistanceY", 0, 2, -1, 1, 24.30625),
])
sketch13.setExpression("Constraints[8]", "Params.sketch13_height")
sketch13.setExpression("Constraints[9]", "Params.sketch13_width")
pad10 = doc.addObject("PartDesign::Pad", "Pad009")
body.addObject(pad10)
pad10.Profile = sketch13
pad10.setExpression("Length", "Params.pad10_length")
pad10.Reversed = True

# Sketch on XZ plane
sketch14 = doc.addObject("Sketcher::SketchObject", "Sketch013")
body.addObject(sketch14)
sketch14.AttachmentSupport = (doc.XZ_Plane, [""])
sketch14.MapMode = "FlatFace"
sketch14.AttachmentOffset = App.Placement(V(0, 0, -4.1), App.Rotation())
add_polygon(sketch14, [(7.6, -30.3), (7.6, -29.3), (18.6, -29.3), (18.6, -30.3)])  # lines 0-3
sketch14.addConstraint([
    Sketcher.Constraint("Vertical", 0),
    Sketcher.Constraint("Horizontal", 1),
    Sketcher.Constraint("Vertical", 2),
    Sketcher.Constraint("Horizontal", 3),
    Sketcher.Constraint("DistanceX", 1, 1, 1, 2, 11.0),
    Sketcher.Constraint("DistanceY", 0, 1, 0, 2, 1.0),
    Sketcher.Constraint("DistanceX", -1, 1, 0, 2, 7.5625),
    Sketcher.Constraint("DistanceY", 0, 2, -1, 1, 29.30625),
])
sketch14.setExpression("Constraints[8]", "Params.sketch14_width")
sketch14.setExpression("Constraints[9]", "Params.sketch14_height")
pad11 = doc.addObject("PartDesign::Pad", "Pad010")
body.addObject(pad11)
pad11.Profile = sketch14
pad11.setExpression("Length", "Params.pad11_length")
pad11.Reversed = True

# Sketch on XZ plane
sketch15 = doc.addObject("Sketcher::SketchObject", "Sketch014")
body.addObject(sketch15)
sketch15.AttachmentSupport = (doc.XZ_Plane, [""])
sketch15.MapMode = "FlatFace"
add_polygon(sketch15, [(-9.4, -24.3), (-9.4, 29.2), (-12.9, 29.2), (-12.9, -24.3)])  # lines 0-3
add_polygon(sketch15, [(26.6, -24.3), (26.6, 29.2), (23.1, 29.2), (23.1, -24.3)])  # lines 4-7
add_polygon(sketch15, [(16.1, -25.3), (16.1, -24.3), (-2.4, -24.3), (-2.4, -25.3)])  # lines 8-11
add_polygon(sketch15, [(18.6, -30.3), (18.6, -29.3), (7.6, -29.3), (7.6, -30.3)])  # lines 12-15
sketch15.addConstraint([
    Sketcher.Constraint("Vertical", 0),
    Sketcher.Constraint("Horizontal", 1),
    Sketcher.Constraint("Vertical", 2),
    Sketcher.Constraint("Horizontal", 3),
    Sketcher.Constraint("Vertical", 4),
    Sketcher.Constraint("Horizontal", 5),
    Sketcher.Constraint("Vertical", 6),
    Sketcher.Constraint("Horizontal", 7),
    Sketcher.Constraint("Vertical", 8),
    Sketcher.Constraint("Horizontal", 9),
    Sketcher.Constraint("Vertical", 10),
    Sketcher.Constraint("Horizontal", 11),
    Sketcher.Constraint("Vertical", 12),
    Sketcher.Constraint("Horizontal", 13),
    Sketcher.Constraint("Vertical", 14),
    Sketcher.Constraint("Horizontal", 15),
    Sketcher.Constraint("Horizontal", 1, 2, 4, 2),
    Sketcher.Constraint("Horizontal", 3, 2, 6, 2),
    Sketcher.Constraint("Horizontal", 7, 2, 8, 2),
    Sketcher.Constraint("Equal", 3, 5),
    Sketcher.Constraint("Equal", 10, 12),
    Sketcher.Constraint("DistanceX", 13, 2, 13, 1, 11.0),
    Sketcher.Constraint("DistanceY", 8, 1, 8, 2, 1.0),
    Sketcher.Constraint("DistanceX", 1, 2, 1, 1, 3.5),
    Sketcher.Constraint("DistanceX", 9, 2, 9, 1, 18.5),
    Sketcher.Constraint("DistanceY", 0, 1, 0, 2, 53.5),
    Sketcher.Constraint("DistanceX", 0, 2, 4, 2, 36.0),
    Sketcher.Constraint("DistanceX", 8, 2, 6, 2, 7.0),
    Sketcher.Constraint("DistanceY", 12, 2, 11, 2, 4.0),
    Sketcher.Constraint("DistanceX", 12, 2, 7, 2, 8.0),
    Sketcher.Constraint("DistanceX", 0, 2, -1, 1, 9.4375),
    Sketcher.Constraint("DistanceY", -1, 1, 0, 2, 29.19375),
])
sketch15.setExpression("Constraints[37]", "Params.sketch15_width")
sketch15.setExpression("Constraints[38]", "Params.sketch15_height")
sketch15.setExpression("Constraints[39]", "Params.sketch15_width2")
sketch15.setExpression("Constraints[40]", "Params.sketch15_width3")
sketch15.setExpression("Constraints[41]", "Params.sketch15_height2")
pad12 = doc.addObject("PartDesign::Pad", "Pad011")
body.addObject(pad12)
pad12.Profile = sketch15
pad12.setExpression("Length", "Params.pad12_length")

# Sketch on XZ plane
sketch16 = doc.addObject("Sketcher::SketchObject", "Sketch015")
body.addObject(sketch16)
sketch16.AttachmentSupport = (doc.XZ_Plane, [""])
sketch16.MapMode = "FlatFace"
sketch16.addGeometry([
    Part.Circle(V(-10.7, 33.9, 0), V(0, 0, 1), 2.5),
    Part.Circle(V(24.3, 33.9, 0), V(0, 0, 1), 2.5),
    Part.Circle(V(-10.7, -29.1, 0), V(0, 0, 1), 2.5),
    Part.Circle(V(24.3, -29.1, 0), V(0, 0, 1), 2.5),
], False)
sketch16.addConstraint([
    Sketcher.Constraint("Equal", 0, 1),
    Sketcher.Constraint("Equal", 1, 2),
    Sketcher.Constraint("Equal", 2, 3),
    Sketcher.Constraint("Horizontal", 0, 3, 1, 3),
    Sketcher.Constraint("Horizontal", 2, 3, 3, 3),
    Sketcher.Constraint("Vertical", 0, 3, 2, 3),
    Sketcher.Constraint("Vertical", 1, 3, 3, 3),
    Sketcher.Constraint("Diameter", 0, 5.0),
    Sketcher.Constraint("DistanceX", 0, 3, 1, 3, 35.0),
    Sketcher.Constraint("DistanceY", 2, 3, 0, 3, 63.0),
    Sketcher.Constraint("DistanceX", 0, 3, -1, 1, 10.6875),
    Sketcher.Constraint("DistanceY", -1, 1, 0, 3, 33.94375),
])
sketch16.setExpression("Constraints[7]", "Params.sketch16_diameter")
pocket4 = doc.addObject("PartDesign::Pocket", "Pocket003")
body.addObject(pocket4)
pocket4.Profile = sketch16
pocket4.setExpression("Length", "Params.pocket4_length")

# Sketch on XZ plane
sketch17 = doc.addObject("Sketcher::SketchObject", "Sketch016")
body.addObject(sketch17)
sketch17.AttachmentSupport = (doc.XZ_Plane, [""])
sketch17.MapMode = "FlatFace"
sketch17.AttachmentOffset = App.Placement(V(0, 0, -1.6), App.Rotation())
add_polygon(sketch17, [(-7, 22), (-7, 38), (7, 38), (7, 22)])  # lines 0-3
sketch17.addConstraint([
    Sketcher.Constraint("Vertical", 0),
    Sketcher.Constraint("Horizontal", 1),
    Sketcher.Constraint("Vertical", 2),
    Sketcher.Constraint("Horizontal", 3),
    Sketcher.Constraint("DistanceX", 1, 1, 1, 2, 14.0),
    Sketcher.Constraint("DistanceY", 0, 1, 0, 2, 16.0),
    Sketcher.Constraint("DistanceX", 0, 2, -1, 1, 6.6875),
    Sketcher.Constraint("DistanceY", -1, 1, 0, 2, 37.94375),
])
sketch17.setExpression("Constraints[8]", "Params.sketch17_width")
sketch17.setExpression("Constraints[9]", "Params.sketch17_height")
pad13 = doc.addObject("PartDesign::Pad", "Pad012")
body.addObject(pad13)
pad13.Profile = sketch17
pad13.setExpression("Length", "Params.pad13_length")
pad13.Reversed = True

# Sketch on XY plane
sketch18 = doc.addObject("Sketcher::SketchObject", "Sketch017")
body.addObject(sketch18)
sketch18.AttachmentSupport = (doc.XY_Plane, [""])
sketch18.MapMode = "FlatFace"
sketch18.AttachmentOffset = App.Placement(V(0, 0, 37.94375), App.Rotation())
sketch18.addGeometry([
    Part.LineSegment(V(5.7, 3.8, 0), V(-5.3, 3.8, 0)),
    Part.ArcOfCircle(Part.Circle(V(-5.3, 2.9, 0), V(0, 0, 1), 0.9), math.radians(90), math.radians(270)),
    Part.LineSegment(V(-5.3, 2, 0), V(5.7, 2, 0)),
    Part.ArcOfCircle(Part.Circle(V(5.7, 2.9, 0), V(0, 0, 1), 0.9), math.radians(-90), math.radians(90)),
], False)
sketch18.addConstraint([
    Sketcher.Constraint("Tangent", 0, 2, 1, 1),
    Sketcher.Constraint("Tangent", 1, 2, 2, 1),
    Sketcher.Constraint("Tangent", 2, 2, 3, 1),
    Sketcher.Constraint("Tangent", 3, 2, 0, 1),
    Sketcher.Constraint("Horizontal", 0),
    Sketcher.Constraint("Horizontal", 2),
    Sketcher.Constraint("Radius", 1, 0.895422),
    Sketcher.Constraint("DistanceX", 0, 2, 0, 1, 11.000895),
    Sketcher.Constraint("DistanceY", -1, 1, 1, 3, 2.914228),
    Sketcher.Constraint("DistanceX", 1, 3, -1, 1, 5.297013),
])
pocket5 = doc.addObject("PartDesign::Pocket", "Pocket004")
body.addObject(pocket5)
pocket5.Profile = sketch18
pocket5.setExpression("Length", "Params.pocket5_length")

doc.recompute()
